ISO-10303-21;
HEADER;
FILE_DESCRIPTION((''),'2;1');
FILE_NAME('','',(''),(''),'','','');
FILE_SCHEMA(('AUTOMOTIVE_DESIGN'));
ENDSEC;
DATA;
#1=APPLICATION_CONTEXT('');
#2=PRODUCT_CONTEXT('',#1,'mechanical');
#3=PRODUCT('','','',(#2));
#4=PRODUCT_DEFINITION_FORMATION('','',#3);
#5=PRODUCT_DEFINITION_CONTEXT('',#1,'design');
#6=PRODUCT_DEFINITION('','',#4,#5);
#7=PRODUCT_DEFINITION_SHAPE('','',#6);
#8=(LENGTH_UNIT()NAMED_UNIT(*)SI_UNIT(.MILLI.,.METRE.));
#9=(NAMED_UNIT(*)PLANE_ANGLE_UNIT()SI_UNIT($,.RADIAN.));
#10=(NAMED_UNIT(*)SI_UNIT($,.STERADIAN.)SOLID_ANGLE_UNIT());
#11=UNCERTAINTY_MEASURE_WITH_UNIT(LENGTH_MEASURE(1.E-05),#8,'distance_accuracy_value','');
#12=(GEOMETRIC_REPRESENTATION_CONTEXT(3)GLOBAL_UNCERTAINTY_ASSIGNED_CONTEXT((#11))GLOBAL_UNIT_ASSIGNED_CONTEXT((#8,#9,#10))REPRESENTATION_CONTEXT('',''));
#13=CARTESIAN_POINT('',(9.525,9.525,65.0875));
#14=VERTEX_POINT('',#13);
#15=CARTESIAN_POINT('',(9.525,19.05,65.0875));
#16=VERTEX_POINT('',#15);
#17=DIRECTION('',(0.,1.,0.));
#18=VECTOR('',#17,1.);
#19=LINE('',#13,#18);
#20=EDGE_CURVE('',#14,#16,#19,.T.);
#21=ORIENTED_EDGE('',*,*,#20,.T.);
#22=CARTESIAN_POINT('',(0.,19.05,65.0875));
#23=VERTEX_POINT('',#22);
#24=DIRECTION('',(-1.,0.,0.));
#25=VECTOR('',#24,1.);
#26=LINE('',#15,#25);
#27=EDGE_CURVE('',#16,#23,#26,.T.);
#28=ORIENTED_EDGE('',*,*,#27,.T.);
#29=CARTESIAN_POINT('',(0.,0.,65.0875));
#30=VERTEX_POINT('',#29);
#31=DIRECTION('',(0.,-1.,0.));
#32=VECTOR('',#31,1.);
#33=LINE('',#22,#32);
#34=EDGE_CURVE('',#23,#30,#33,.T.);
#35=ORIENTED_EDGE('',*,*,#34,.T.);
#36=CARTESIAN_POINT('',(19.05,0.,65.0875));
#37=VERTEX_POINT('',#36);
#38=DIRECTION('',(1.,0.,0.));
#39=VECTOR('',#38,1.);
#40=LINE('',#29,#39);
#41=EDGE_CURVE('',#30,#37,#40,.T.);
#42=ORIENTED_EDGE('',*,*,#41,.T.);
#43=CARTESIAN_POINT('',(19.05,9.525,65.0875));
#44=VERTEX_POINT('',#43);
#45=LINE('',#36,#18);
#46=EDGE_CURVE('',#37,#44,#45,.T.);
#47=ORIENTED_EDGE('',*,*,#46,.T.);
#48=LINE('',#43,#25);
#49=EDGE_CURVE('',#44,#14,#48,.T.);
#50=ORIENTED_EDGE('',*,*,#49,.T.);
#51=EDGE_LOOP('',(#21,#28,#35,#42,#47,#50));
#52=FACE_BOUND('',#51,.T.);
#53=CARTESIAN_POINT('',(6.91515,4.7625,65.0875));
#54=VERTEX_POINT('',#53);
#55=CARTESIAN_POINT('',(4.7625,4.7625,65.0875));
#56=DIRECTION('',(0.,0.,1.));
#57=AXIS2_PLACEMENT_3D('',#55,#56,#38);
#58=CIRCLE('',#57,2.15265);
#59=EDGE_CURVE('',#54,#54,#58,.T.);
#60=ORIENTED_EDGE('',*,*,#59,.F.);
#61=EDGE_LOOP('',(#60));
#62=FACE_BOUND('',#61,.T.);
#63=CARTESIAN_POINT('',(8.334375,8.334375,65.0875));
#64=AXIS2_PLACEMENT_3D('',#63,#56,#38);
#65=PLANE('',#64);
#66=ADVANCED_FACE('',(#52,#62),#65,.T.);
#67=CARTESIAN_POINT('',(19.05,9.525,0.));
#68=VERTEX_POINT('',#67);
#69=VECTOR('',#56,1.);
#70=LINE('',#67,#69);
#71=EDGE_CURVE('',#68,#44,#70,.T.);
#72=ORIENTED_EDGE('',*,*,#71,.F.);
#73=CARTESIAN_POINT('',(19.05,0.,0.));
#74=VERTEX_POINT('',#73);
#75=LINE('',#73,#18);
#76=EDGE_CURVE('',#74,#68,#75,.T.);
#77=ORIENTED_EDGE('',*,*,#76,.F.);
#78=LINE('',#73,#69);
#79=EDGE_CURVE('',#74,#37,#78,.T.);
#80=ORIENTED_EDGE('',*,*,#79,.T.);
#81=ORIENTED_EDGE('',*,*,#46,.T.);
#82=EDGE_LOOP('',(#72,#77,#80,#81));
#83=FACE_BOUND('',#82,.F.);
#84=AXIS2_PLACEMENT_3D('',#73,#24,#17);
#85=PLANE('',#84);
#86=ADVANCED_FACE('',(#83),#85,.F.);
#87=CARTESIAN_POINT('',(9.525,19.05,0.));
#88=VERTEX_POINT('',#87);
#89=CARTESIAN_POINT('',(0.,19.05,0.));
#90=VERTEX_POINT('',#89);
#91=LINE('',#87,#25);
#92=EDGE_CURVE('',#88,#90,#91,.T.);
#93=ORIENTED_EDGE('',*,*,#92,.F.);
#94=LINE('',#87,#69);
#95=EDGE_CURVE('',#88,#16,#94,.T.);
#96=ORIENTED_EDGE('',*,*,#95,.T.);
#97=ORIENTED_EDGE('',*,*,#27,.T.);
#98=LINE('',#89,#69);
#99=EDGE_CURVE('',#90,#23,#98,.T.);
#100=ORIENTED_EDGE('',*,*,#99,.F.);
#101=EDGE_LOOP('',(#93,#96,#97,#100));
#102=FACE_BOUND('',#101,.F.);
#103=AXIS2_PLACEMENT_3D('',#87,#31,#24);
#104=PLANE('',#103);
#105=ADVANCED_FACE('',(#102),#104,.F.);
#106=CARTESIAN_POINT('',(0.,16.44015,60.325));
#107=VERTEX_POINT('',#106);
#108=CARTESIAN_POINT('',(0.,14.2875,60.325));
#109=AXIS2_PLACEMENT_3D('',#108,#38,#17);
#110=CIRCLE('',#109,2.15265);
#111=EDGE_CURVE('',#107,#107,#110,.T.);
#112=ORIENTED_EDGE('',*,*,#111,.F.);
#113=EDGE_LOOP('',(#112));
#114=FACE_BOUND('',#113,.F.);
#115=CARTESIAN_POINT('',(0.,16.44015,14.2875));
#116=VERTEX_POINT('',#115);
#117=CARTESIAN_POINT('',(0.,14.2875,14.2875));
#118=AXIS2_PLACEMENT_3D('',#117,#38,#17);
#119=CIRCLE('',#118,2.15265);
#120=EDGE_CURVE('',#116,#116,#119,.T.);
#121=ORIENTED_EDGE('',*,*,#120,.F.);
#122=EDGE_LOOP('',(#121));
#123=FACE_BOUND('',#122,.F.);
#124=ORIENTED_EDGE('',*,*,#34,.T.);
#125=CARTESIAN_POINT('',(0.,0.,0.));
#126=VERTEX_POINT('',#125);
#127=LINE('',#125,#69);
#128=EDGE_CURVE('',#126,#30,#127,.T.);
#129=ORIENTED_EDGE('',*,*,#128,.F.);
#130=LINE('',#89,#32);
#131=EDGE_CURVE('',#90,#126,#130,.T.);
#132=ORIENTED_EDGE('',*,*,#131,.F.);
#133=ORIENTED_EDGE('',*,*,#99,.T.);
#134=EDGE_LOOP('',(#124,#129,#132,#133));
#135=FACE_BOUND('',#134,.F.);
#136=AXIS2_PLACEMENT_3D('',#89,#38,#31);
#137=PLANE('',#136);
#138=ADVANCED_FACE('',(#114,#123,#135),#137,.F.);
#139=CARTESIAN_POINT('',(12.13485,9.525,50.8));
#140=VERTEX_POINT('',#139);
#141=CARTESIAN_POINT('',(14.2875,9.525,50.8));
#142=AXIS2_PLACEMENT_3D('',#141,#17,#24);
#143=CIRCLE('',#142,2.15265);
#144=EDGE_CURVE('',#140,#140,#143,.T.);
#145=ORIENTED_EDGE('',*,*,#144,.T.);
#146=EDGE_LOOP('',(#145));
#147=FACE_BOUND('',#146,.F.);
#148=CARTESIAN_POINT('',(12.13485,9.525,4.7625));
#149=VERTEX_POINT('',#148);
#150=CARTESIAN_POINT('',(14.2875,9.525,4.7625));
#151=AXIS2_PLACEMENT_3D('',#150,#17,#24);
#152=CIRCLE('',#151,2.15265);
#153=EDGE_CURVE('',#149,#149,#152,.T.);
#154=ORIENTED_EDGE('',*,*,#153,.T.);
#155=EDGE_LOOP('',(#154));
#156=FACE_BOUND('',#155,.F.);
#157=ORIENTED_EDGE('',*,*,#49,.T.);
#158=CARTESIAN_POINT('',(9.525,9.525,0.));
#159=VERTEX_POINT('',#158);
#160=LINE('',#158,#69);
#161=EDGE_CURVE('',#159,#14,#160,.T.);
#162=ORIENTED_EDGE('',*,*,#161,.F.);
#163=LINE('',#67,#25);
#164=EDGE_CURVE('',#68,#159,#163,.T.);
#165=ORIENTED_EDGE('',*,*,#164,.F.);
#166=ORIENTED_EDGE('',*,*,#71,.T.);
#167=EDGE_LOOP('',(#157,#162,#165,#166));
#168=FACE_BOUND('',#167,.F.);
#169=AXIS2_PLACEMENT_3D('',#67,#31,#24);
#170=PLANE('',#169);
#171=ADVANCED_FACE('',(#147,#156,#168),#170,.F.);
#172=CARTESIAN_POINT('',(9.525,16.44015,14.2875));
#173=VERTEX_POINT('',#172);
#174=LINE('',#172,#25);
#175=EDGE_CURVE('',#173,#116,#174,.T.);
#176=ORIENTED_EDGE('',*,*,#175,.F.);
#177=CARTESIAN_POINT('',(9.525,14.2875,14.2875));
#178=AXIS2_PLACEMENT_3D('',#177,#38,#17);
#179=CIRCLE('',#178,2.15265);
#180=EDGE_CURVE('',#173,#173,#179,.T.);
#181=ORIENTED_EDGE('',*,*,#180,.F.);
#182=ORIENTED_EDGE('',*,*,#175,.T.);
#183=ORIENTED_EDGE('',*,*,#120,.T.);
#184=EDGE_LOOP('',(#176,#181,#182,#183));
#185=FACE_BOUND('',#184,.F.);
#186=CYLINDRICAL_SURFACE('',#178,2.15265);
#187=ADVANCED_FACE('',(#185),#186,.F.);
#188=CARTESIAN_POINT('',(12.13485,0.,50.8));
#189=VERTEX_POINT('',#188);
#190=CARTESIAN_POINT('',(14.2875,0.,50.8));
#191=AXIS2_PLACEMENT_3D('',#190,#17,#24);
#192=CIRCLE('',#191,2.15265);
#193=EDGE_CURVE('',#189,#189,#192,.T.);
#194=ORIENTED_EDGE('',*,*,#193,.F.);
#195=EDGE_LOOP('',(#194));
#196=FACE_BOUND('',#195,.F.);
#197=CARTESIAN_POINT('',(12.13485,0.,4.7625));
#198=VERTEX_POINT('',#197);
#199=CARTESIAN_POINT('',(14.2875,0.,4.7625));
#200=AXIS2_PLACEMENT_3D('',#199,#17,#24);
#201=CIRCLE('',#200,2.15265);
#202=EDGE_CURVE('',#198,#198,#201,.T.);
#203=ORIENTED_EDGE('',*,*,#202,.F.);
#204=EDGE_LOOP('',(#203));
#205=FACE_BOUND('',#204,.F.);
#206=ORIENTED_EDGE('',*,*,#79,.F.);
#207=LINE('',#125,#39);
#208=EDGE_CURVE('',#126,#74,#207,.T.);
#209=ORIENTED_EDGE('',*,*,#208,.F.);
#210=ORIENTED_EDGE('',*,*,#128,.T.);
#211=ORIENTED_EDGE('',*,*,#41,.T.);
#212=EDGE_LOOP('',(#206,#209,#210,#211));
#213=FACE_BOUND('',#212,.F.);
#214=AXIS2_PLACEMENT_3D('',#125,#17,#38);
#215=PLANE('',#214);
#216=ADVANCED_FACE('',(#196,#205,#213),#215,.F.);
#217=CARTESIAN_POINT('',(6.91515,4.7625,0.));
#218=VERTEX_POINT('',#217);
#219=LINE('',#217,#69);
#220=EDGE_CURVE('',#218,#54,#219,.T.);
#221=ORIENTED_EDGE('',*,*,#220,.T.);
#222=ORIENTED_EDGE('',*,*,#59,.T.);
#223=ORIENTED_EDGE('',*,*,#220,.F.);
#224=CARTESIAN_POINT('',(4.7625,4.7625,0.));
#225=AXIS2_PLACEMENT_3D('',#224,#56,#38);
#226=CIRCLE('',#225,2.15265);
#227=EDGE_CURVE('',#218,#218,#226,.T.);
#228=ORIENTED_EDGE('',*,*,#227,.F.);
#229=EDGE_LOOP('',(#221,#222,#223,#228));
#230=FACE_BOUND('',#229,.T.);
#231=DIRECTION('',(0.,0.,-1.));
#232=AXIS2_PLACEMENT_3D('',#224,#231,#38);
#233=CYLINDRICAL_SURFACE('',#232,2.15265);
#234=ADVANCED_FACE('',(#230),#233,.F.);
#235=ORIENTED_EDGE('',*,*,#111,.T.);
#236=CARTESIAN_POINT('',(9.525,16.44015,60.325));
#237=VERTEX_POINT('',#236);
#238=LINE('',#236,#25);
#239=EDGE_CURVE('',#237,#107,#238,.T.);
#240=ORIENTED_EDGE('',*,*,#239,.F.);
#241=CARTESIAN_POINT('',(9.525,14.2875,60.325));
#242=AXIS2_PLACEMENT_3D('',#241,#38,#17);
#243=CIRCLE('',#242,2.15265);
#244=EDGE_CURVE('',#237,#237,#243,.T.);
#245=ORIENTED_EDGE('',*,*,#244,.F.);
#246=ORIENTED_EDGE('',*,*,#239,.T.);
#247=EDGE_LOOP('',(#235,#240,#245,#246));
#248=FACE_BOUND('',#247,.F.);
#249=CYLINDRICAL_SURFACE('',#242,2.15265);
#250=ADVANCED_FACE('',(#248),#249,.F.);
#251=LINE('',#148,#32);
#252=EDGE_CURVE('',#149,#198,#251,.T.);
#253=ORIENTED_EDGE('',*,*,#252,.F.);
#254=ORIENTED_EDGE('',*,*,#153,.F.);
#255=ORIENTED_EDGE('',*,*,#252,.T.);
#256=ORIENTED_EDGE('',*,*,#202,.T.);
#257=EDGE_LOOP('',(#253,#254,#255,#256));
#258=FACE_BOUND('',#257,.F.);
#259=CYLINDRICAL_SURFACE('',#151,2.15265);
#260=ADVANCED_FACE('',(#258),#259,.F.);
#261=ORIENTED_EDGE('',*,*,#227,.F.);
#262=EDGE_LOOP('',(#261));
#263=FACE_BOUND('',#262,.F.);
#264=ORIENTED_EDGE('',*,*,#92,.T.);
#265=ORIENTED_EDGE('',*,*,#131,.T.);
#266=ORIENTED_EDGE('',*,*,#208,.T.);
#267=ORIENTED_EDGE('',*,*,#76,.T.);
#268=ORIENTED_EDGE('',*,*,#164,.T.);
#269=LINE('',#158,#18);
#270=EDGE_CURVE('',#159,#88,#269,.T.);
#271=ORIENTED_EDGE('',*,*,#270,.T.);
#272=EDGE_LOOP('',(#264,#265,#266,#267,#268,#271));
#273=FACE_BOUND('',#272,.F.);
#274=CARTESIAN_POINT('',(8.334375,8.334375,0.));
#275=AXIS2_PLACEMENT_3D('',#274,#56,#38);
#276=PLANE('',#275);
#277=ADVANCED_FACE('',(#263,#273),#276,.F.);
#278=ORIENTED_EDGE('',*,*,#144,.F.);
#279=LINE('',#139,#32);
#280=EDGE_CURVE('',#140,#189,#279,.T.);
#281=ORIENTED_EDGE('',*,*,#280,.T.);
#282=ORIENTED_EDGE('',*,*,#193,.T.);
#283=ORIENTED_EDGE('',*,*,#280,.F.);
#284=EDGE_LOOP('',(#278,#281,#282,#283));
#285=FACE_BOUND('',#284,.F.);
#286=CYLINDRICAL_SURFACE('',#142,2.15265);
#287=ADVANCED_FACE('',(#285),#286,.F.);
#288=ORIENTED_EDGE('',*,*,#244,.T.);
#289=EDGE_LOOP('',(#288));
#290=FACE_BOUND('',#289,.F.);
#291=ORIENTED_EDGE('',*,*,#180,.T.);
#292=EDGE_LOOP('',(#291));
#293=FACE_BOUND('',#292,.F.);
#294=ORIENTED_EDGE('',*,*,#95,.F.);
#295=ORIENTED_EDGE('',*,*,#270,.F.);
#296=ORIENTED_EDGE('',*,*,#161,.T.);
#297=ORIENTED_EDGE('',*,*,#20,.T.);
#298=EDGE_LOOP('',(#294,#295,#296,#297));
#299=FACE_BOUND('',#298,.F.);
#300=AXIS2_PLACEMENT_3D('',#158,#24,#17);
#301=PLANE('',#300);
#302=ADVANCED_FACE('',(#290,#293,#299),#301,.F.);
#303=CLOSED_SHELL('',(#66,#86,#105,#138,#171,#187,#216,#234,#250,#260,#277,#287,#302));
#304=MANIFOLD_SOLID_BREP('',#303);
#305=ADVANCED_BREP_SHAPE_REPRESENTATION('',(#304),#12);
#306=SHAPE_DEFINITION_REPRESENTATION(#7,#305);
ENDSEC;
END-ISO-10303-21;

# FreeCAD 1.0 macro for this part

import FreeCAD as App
import Part
import Sketcher

V = App.Vector
Q = App.Units.Quantity

doc = App.newDocument("Part")
body = doc.addObject("PartDesign::Body", "Body")

sketch1 = body.newObject("Sketcher::SketchObject", "Sketch")
sketch1.AttachmentSupport = (doc.getObject("XY_Plane"), [""])
sketch1.MapMode = "FlatFace"
sketch1.addGeometry(Part.LineSegment(V(0, 19.05, 0), V(0, 0, 0)), False)
sketch1.addGeometry(Part.LineSegment(V(0, 0, 0), V(19.05, 0, 0)), False)
sketch1.addGeometry(Part.LineSegment(V(19.05, 0, 0), V(19.05, 9.525, 0)), False)
sketch1.addGeometry(Part.LineSegment(V(19.05, 9.525, 0), V(9.525, 9.525, 0)), False)
sketch1.addGeometry(Part.LineSegment(V(9.525, 9.525, 0), V(9.525, 19.05, 0)), False)
sketch1.addGeometry(Part.LineSegment(V(9.525, 19.05, 0), V(0, 19.05, 0)), False)
sketch1.addGeometry(Part.Circle(V(4.7625, 4.7625, 0), V(0, 0, 1), 2.15265), False)
sketch1.addConstraint(Sketcher.Constraint("Coincident", 0, 2, 1, 1))
sketch1.addConstraint(Sketcher.Constraint("Coincident", 1, 2, 2, 1))
sketch1.addConstraint(Sketcher.Constraint("Coincident", 2, 2, 3, 1))
sketch1.addConstraint(Sketcher.Constraint("Coincident", 3, 2, 4, 1))
sketch1.addConstraint(Sketcher.Constraint("Coincident", 4, 2, 5, 1))
sketch1.addConstraint(Sketcher.Constraint("Coincident", 5, 2, 0, 1))
sketch1.addConstraint(Sketcher.Constraint("Vertical", 0))
sketch1.addConstraint(Sketcher.Constraint("Horizontal", 1))
sketch1.addConstraint(Sketcher.Constraint("Vertical", 2))
sketch1.addConstraint(Sketcher.Constraint("Horizontal", 3))
sketch1.addConstraint(Sketcher.Constraint("Vertical", 4))
sketch1.addConstraint(Sketcher.Constraint("Horizontal", 5))
sketch1.addConstraint(Sketcher.Constraint("Coincident", 0, 2, -1, 1))
sketch1.addConstraint(Sketcher.Constraint("Equal", 3, 5))
sketch1.addConstraint(Sketcher.Constraint("Equal", 1, 0))
sketch1.addConstraint(Sketcher.Constraint("Equal", 5, 2))
sketch1.addConstraint(Sketcher.Constraint("Diameter", 6, Q("0.1695 in")))
sketch1.addConstraint(Sketcher.Constraint("DistanceX", 1, 1, 1, 2, Q("0.75 in")))
sketch1.addConstraint(Sketcher.Constraint("DistanceX", -1, 1, 6, 3, Q("0.1875 in")))
sketch1.addConstraint(Sketcher.Constraint("DistanceY", -1, 1, 6, 3, Q("0.1875 in")))
pad1 = body.newObject("PartDesign::Pad", "Pad")
pad1.Profile = sketch1
pad1.Length = Q("2.5625 in")

sketch2 = body.newObject("Sketcher::SketchObject", "Sketch001")
sketch2.AttachmentSupport = (doc.getObject("YZ_Plane"), [""])
sketch2.MapMode = "FlatFace"
sketch2.AttachmentOffset = App.Placement(V(0, 0, 0.375 * 25.4), App.Rotation())
sketch2.addGeometry(Part.Circle(V(14.2875, 60.325, 0), V(0, 0, 1), 2.15265), False)
sketch2.addGeometry(Part.Circle(V(14.2875, 14.2875, 0), V(0, 0, 1), 2.15265), False)
sketch2.addConstraint(Sketcher.Constraint("Equal", 0, 1))
sketch2.addConstraint(Sketcher.Constraint("Vertical", 0, 3, 1, 3))
sketch2.addConstraint(Sketcher.Constraint("Diameter", 0, Q("0.1695 in")))
sketch2.addConstraint(Sketcher.Constraint("DistanceX", -1, 1, 0, 3, Q("0.5625 in")))
sketch2.addConstraint(Sketcher.Constraint("DistanceY", -1, 1, 0, 3, Q("2.375 in")))
sketch2.addConstraint(Sketcher.Constraint("DistanceY", -1, 1, 1, 3, Q("0.5625 in")))
pocket1 = body.newObject("PartDesign::Pocket", "Pocket")
pocket1.Profile = sketch2
pocket1.Type = "ThroughAll"

sketch3 = body.newObject("Sketcher::SketchObject", "Sketch002")
sketch3.AttachmentSupport = (doc.getObject("XZ_Plane"), [""])
sketch3.MapMode = "FlatFace"
sketch3.AttachmentOffset = App.Placement(V(0, 0, -0.375 * 25.4), App.Rotation())
sketch3.addGeometry(Part.Circle(V(14.2875, 50.8, 0), V(0, 0, 1), 2.15265), False)
sketch3.addGeometry(Part.Circle(V(14.2875, 4.7625, 0), V(0, 0, 1), 2.15265), False)
sketch3.addConstraint(Sketcher.Constraint("Equal", 0, 1))
sketch3.addConstraint(Sketcher.Constraint("Vertical", 0, 3, 1, 3))
sketch3.addConstraint(Sketcher.Constraint("DistanceY", -1, 1, 0, 3, Q("2 in")))
sketch3.addConstraint(Sketcher.Constraint("Diameter", 0, Q("0.1695 in")))
sketch3.addConstraint(Sketcher.Constraint("DistanceX", -1, 1, 0, 3, Q("0.5625 in")))
sketch3.addConstraint(Sketcher.Constraint("DistanceY", -1, 1, 1, 3, Q("0.1875 in")))
pocket2 = body.newObject("PartDesign::Pocket", "Pocket001")
pocket2.Profile = sketch3
pocket2.Type = "ThroughAll"
pocket2.Reversed = True

doc.recompute()
